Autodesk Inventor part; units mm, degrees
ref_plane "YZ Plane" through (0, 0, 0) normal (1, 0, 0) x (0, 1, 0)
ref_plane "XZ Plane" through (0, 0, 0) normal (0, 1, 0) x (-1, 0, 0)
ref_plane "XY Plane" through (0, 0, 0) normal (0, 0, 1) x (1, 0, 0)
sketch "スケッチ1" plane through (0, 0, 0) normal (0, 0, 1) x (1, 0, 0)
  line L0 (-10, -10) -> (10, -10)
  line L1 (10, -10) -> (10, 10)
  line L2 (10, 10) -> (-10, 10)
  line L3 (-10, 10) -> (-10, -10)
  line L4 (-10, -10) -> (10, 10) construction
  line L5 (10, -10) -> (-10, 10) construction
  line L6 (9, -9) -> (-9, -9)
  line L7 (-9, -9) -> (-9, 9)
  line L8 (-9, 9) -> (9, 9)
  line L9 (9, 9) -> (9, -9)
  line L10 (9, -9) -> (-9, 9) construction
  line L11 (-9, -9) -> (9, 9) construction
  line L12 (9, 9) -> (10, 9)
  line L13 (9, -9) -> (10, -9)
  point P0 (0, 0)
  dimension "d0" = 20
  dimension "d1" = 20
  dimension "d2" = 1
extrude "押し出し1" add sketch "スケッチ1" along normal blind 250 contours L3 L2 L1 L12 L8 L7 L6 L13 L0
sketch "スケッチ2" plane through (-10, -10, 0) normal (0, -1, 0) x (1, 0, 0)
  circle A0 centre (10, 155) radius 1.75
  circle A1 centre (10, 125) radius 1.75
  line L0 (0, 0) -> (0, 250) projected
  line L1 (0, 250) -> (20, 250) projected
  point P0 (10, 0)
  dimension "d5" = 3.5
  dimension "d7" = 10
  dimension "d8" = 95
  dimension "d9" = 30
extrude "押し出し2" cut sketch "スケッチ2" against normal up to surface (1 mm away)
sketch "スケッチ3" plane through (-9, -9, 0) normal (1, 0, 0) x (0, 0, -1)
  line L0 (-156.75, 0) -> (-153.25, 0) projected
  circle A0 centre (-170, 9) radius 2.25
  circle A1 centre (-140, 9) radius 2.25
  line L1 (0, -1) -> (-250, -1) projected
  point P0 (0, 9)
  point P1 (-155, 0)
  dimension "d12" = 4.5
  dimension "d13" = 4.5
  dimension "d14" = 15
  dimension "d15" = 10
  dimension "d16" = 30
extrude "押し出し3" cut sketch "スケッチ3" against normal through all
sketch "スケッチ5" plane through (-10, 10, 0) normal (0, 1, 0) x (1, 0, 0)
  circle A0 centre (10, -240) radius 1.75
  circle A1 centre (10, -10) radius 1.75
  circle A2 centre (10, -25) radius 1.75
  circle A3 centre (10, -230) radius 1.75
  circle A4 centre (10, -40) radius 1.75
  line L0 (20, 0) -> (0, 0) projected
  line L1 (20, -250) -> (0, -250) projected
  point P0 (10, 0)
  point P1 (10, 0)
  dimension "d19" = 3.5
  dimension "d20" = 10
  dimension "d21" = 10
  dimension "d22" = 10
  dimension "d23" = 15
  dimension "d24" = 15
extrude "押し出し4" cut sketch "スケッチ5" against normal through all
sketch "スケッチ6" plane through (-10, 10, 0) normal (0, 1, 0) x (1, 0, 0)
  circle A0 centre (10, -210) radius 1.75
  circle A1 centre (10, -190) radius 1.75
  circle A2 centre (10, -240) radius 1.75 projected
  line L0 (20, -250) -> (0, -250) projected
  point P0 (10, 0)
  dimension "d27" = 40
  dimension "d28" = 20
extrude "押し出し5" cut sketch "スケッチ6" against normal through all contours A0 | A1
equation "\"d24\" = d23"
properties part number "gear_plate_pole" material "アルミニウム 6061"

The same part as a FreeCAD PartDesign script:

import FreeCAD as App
import Part
import Sketcher

V = App.Vector
Q = App.Units.Quantity


def add_polygon(sketch, points):
    """Adds a closed chain of lines whose ends are joined by coincident constraints."""
    first, n = sketch.GeometryCount, len(points)
    for a, b in zip(points, points[1:] + points[:1]):
        sketch.addGeometry(Part.LineSegment(App.Vector(*a, 0), App.Vector(*b, 0)), False)
    for i in range(n):
        sketch.addConstraint(Sketcher.Constraint("Coincident", first + i, 2, first + (i + 1) % n, 1))

doc = App.newDocument("Part")
params = doc.addObject("Spreadsheet::Sheet", "Params")
for row, (alias, value) in enumerate([
    ("sketch1_width", "20 mm"),
    ("sketch1_height", "1 mm"),
    ("pad1_length", "250 mm"),
    ("sketch2_diameter", "3.5 mm"),
    ("pocket1_length", "1 mm"),
    ("sketch3_diameter", "4.5 mm"),
    ("sketch4_diameter", "3.5 mm"),
    ("sketch5_diameter", "3.5 mm"),
], start=1):
    params.set(f"A{row}", alias)
    params.set(f"B{row}", "=" + value)
    params.setAlias(f"B{row}", alias)

body = doc.addObject("PartDesign::Body", "Body")

# Sketch on XY plane
sketch1 = body.newObject("Sketcher::SketchObject", "Sketch")
sketch1.AttachmentSupport = (doc.getObject("XY_Plane"), [""])
sketch1.MapMode = "FlatFace"
add_polygon(sketch1, [(-10, 10), (-10, -10), (10, -10), (10, -9), (-9, -9), (-9, 9), (10, 9), (10, 10)])  # lines 0-7
sketch1.addConstraint([
    Sketcher.Constraint("Vertical", 0),
    Sketcher.Constraint("Horizontal", 1),
    Sketcher.Constraint("Vertical", 2),
    Sketcher.Constraint("Horizontal", 3),
    Sketcher.Constraint("Vertical", 4),
    Sketcher.Constraint("Horizontal", 5),
    Sketcher.Constraint("Vertical", 6),
    Sketcher.Constraint("Horizontal", 7),
    Sketcher.Constraint("Symmetric", 0, 2, 6, 2, -1, 1),
    Sketcher.Constraint("Symmetric", 2, 2, 5, 2, -1),
    Sketcher.Constraint("Equal", 7, 0),
    Sketcher.Constraint("DistanceX", 1, 1, 1, 2, Q("20 mm")),
    Sketcher.Constraint("DistanceY", 2, 1, 2, 2, Q("1 mm")),
    Sketcher.Constraint("DistanceX", 0, 2, 3, 2, Q("1 mm")),
])
sketch1.setExpression("Constraints[19]", "Params.sketch1_width")
sketch1.setExpression("Constraints[20]", "Params.sketch1_height")
pad1 = body.newObject("PartDesign::Pad", "Pad")
pad1.Profile = sketch1
pad1.setExpression("Length", "Params.pad1_length")

# Sketch on XZ plane
sketch2 = body.newObject("Sketcher::SketchObject", "Sketch001")
sketch2.AttachmentSupport = (doc.getObject("XZ_Plane"), [""])
sketch2.MapMode = "FlatFace"
sketch2.AttachmentOffset = App.Placement(V(0, 0, 10), App.Rotation())
sketch2.addGeometry([
    Part.Circle(V(0, 155, 0), V(0, 0, 1), 1.8),
    Part.Circle(V(0, 125, 0), V(0, 0, 1), 1.8),
], False)
sketch2.addConstraint([
    Sketcher.Constraint("Equal", 0, 1),
    Sketcher.Constraint("PointOnObject", 0, 3, -2),
    Sketcher.Constraint("PointOnObject", 1, 3, -2),
    Sketcher.Constraint("Diameter", 0, Q("3.5 mm")),
    Sketcher.Constraint("DistanceY", 1, 3, 0, 3, Q("30 mm")),
    Sketcher.Constraint("DistanceY", -1, 1, 0, 3, Q("155 mm")),
])
sketch2.setExpression("Constraints[3]", "Params.sketch2_diameter")
pocket1 = body.newObject("PartDesign::Pocket", "Pocket")
pocket1.Profile = sketch2
pocket1.setExpression("Length", "Params.pocket1_length")

# Sketch on YZ plane
sketch3 = body.newObject("Sketcher::SketchObject", "Sketch002")
sketch3.AttachmentSupport = (doc.getObject("YZ_Plane"), [""])
sketch3.MapMode = "FlatFace"
sketch3.AttachmentOffset = App.Placement(V(0, 0, -9), App.Rotation())
sketch3.addGeometry([
    Part.Circle(V(0, 170, 0), V(0, 0, 1), 2.2),
    Part.Circle(V(0, 140, 0), V(0, 0, 1), 2.2),
], False)
sketch3.addConstraint([
    Sketcher.Constraint("Equal", 0, 1),
    Sketcher.Constraint("PointOnObject", 0, 3, -2),
    Sketcher.Constraint("PointOnObject", 1, 3, -2),
    Sketcher.Constraint("Diameter", 0, Q("4.5 mm")),
    Sketcher.Constraint("DistanceY", 1, 3, 0, 3, Q("30 mm")),
    Sketcher.Constraint("DistanceY", -1, 1, 0, 3, Q("170 mm")),
])
sketch3.setExpression("Constraints[3]", "Params.sketch3_diameter")
pocket2 = body.newObject("PartDesign::Pocket", "Pocket001")
pocket2.Profile = sketch3
pocket2.Type = "ThroughAll"

# Sketch on XZ plane
sketch4 = body.newObject("Sketcher::SketchObject", "Sketch003")
sketch4.AttachmentSupport = (doc.getObject("XZ_Plane"), [""])
sketch4.MapMode = "FlatFace"
sketch4.AttachmentOffset = App.Placement(V(0, 0, -10), App.Rotation())
sketch4.addGeometry([
    Part.Circle(V(0, 240, 0), V(0, 0, 1), 1.8),  # 0
    Part.Circle(V(0, 10, 0), V(0, 0, 1), 1.8),  # 1
    Part.Circle(V(0, 25, 0), V(0, 0, 1), 1.8),  # 2
    Part.Circle(V(0, 230, 0), V(0, 0, 1), 1.8),  # 3
    Part.Circle(V(0, 40, 0), V(0, 0, 1), 1.8),  # 4
], False)
sketch4.addConstraint([
    Sketcher.Constraint("Equal", 0, 1),
    Sketcher.Constraint("Equal", 1, 2),
    Sketcher.Constraint("Equal", 2, 3),
    Sketcher.Constraint("Equal", 3, 4),
    Sketcher.Constraint("PointOnObject", 0, 3, -2),
    Sketcher.Constraint("PointOnObject", 1, 3, -2),
    Sketcher.Constraint("PointOnObject", 2, 3, -2),
    Sketcher.Constraint("PointOnObject", 3, 3, -2),
    Sketcher.Constraint("PointOnObject", 4, 3, -2),
    Sketcher.Constraint("Diameter", 0, Q("3.5 mm")),
    Sketcher.Constraint("DistanceY", -1, 1, 1, 3, Q("10 mm")),
    Sketcher.Constraint("DistanceY", 1, 3, 2, 3, Q("15 mm")),
    Sketcher.Constraint("DistanceY", 3, 3, 0, 3, Q("10 mm")),
    Sketcher.Constraint("DistanceY", 2, 3, 4, 3, Q("15 mm")),
    Sketcher.Constraint("DistanceY", -1, 1, 0, 3, Q("240 mm")),
])
sketch4.setExpression("Constraints[9]", "Params.sketch4_diameter")
pocket3 = body.newObject("PartDesign::Pocket", "Pocket002")
pocket3.Profile = sketch4
pocket3.Type = "ThroughAll"
pocket3.Reversed = True

# Sketch on XZ plane
sketch5 = body.newObject("Sketcher::SketchObject", "Sketch004")
sketch5.AttachmentSupport = (doc.getObject("XZ_Plane"), [""])
sketch5.MapMode = "FlatFace"
sketch5.AttachmentOffset = App.Placement(V(0, 0, -10), App.Rotation())
sketch5.addGeometry([
    Part.Circle(V(0, 210, 0), V(0, 0, 1), 1.8),
    Part.Circle(V(0, 190, 0), V(0, 0, 1), 1.8),
], False)
sketch5.addConstraint([
    Sketcher.Constraint("Equal", 0, 1),
    Sketcher.Constraint("PointOnObject", 0, 3, -2),
    Sketcher.Constraint("PointOnObject", 1, 3, -2),
    Sketcher.Constraint("DistanceY", 1, 3, 0, 3, Q("20 mm")),
    Sketcher.Constraint("Diameter", 0, Q("3.5 mm")),
    Sketcher.Constraint("DistanceY", -1, 1, 0, 3, Q("210 mm")),
])
sketch5.setExpression("Constraints[4]", "Params.sketch5_diameter")
pocket4 = body.newObject("PartDesign::Pocket", "Pocket003")
pocket4.Profile = sketch5
pocket4.Type = "ThroughAll"
pocket4.Reversed = True

doc.recompute()
